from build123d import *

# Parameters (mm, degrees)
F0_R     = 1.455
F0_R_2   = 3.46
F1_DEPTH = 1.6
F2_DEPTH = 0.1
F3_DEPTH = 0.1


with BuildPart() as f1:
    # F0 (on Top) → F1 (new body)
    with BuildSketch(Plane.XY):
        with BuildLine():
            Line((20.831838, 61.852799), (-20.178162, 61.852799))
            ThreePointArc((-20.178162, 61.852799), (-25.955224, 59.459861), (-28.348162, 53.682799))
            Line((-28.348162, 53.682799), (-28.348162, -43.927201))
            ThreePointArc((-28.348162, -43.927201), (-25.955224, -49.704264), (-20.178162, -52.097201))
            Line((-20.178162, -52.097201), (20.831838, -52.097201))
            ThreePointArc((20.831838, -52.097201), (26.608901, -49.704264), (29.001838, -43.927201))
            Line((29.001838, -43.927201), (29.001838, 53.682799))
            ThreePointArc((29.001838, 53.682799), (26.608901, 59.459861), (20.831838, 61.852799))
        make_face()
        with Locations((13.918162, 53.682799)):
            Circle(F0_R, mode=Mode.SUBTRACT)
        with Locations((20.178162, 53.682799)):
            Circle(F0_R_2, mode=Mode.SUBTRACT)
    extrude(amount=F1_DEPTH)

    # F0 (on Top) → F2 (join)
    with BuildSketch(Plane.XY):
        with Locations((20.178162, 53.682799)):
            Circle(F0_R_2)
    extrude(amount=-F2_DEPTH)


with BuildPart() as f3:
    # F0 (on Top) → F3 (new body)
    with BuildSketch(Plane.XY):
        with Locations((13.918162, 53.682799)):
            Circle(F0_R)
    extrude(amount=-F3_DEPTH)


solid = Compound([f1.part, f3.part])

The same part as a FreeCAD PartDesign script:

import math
import FreeCAD as App
import Part
import Sketcher
Q = App.Units.Quantity

doc = App.newDocument("Part")
body = doc.addObject("PartDesign::Body", "Body")
body.AllowCompound = True

# Sketch on XY plane
sketch1 = body.newObject("Sketcher::SketchObject", "Sketch")
sketch1.AttachmentSupport = (doc.getObject("XY_Plane"), [""])
sketch1.MapMode = "FlatFace"
sketch1.addGeometry([
    Part.LineSegment(App.Vector(20.8, 61.9, 0), App.Vector(-20.2, 61.9, 0)),  # 0
    Part.ArcOfCircle(Part.Circle(App.Vector(-20.2, 53.7, 0), App.Vector(0, 0, 1), 8.2), math.radians(90), math.radians(180)),  # 1
    Part.LineSegment(App.Vector(-28.3, 53.7, 0), App.Vector(-28.3, -43.9, 0)),  # 2
    Part.ArcOfCircle(Part.Circle(App.Vector(-20.2, -43.9, 0), App.Vector(0, 0, 1), 8.2), math.radians(180), math.radians(270)),  # 3
    Part.LineSegment(App.Vector(-20.2, -52.1, 0), App.Vector(20.8, -52.1, 0)),  # 4
    Part.ArcOfCircle(Part.Circle(App.Vector(20.8, -43.9, 0), App.Vector(0, 0, 1), 8.2), math.radians(-90), math.radians(0)),  # 5
    Part.LineSegment(App.Vector(29, -43.9, 0), App.Vector(29, 53.7, 0)),  # 6
    Part.ArcOfCircle(Part.Circle(App.Vector(20.8, 53.7, 0), App.Vector(0, 0, 1), 8.2), math.radians(0), math.radians(90)),  # 7
    Part.Circle(App.Vector(13.9, 53.7, 0), App.Vector(0, 0, 1), 1.5),  # 8
    Part.Circle(App.Vector(20.2, 53.7, 0), App.Vector(0, 0, 1), 3.5),  # 9
], False)
sketch1.addConstraint([
    Sketcher.Constraint("Tangent", 0, 2, 1, 1),
    Sketcher.Constraint("Tangent", 1, 2, 2, 1),
    Sketcher.Constraint("Tangent", 2, 2, 3, 1),
    Sketcher.Constraint("Tangent", 3, 2, 4, 1),
    Sketcher.Constraint("Tangent", 4, 2, 5, 1),
    Sketcher.Constraint("Tangent", 5, 2, 6, 1),
    Sketcher.Constraint("Tangent", 6, 2, 7, 1),
    Sketcher.Constraint("Tangent", 7, 2, 0, 1),
    Sketcher.Constraint("Horizontal", 0),
    Sketcher.Constraint("Vertical", 2),
    Sketcher.Constraint("Horizontal", 4),
    Sketcher.Constraint("Vertical", 6),
    Sketcher.Constraint("Equal", 1, 3),
    Sketcher.Constraint("Equal", 3, 5),
    Sketcher.Constraint("Equal", 5, 7),
    Sketcher.Constraint("Symmetric", 1, 3, 9, 3, -2),
    Sketcher.Constraint("Horizontal", 7, 3, 8, 3),
    Sketcher.Constraint("Diameter", 8, Q("2.91 mm")),
    Sketcher.Constraint("Diameter", 9, Q("6.92 mm")),
    Sketcher.Constraint("Radius", 1, Q("8.170001 mm")),
    Sketcher.Constraint("DistanceX", 0, 2, 0, 1, Q("41.01 mm")),
    Sketcher.Constraint("DistanceY", 2, 2, 2, 1, Q("97.61 mm")),
    Sketcher.Constraint("DistanceX", 8, 3, 9, 3, Q("6.26 mm")),
    Sketcher.Constraint("DistanceY", 3, 3, -1, 1, Q("43.927201 mm")),
    Sketcher.Constraint("DistanceX", 1, 3, -1, 1, Q("20.178161 mm")),
])
pad1 = body.newObject("PartDesign::Pad", "Pad")
pad1.Profile = sketch1
pad1.Length = 1.6

# Sketch on XY plane
sketch2 = body.newObject("Sketcher::SketchObject", "Sketch001")
sketch2.AttachmentSupport = (doc.getObject("XY_Plane"), [""])
sketch2.MapMode = "FlatFace"
sketch2.addGeometry(Part.Circle(App.Vector(20.2, 53.7, 0), App.Vector(0, 0, 1), 3.5), False)
sketch2.addConstraint([
    Sketcher.Constraint("Diameter", 0, Q("6.92 mm")),
    Sketcher.Constraint("DistanceY", -1, 1, 0, 3, Q("53.682799 mm")),
    Sketcher.Constraint("DistanceX", -1, 1, 0, 3, Q("20.178162 mm")),
])
pad2 = body.newObject("PartDesign::Pad", "Pad001")
pad2.Profile = sketch2
pad2.Length = 0.1
pad2.Reversed = True
body2 = doc.addObject("PartDesign::Body", "Body001")

# Sketch on XY plane
sketch3 = body2.newObject("Sketcher::SketchObject", "Sketch002")
sketch3.AttachmentSupport = (doc.getObject("XY_Plane001"), [""])
sketch3.MapMode = "FlatFace"
sketch3.addGeometry(Part.Circle(App.Vector(13.9, 53.7, 0), App.Vector(0, 0, 1), 1.5), False)
sketch3.addConstraint([
    Sketcher.Constraint("Diameter", 0, Q("2.91 mm")),
    Sketcher.Constraint("DistanceY", -1, 1, 0, 3, Q("53.682799 mm")),
    Sketcher.Constraint("DistanceX", -1, 1, 0, 3, Q("13.918162 mm")),
])
pad3 = body2.newObject("PartDesign::Pad", "Pad002")
pad3.Profile = sketch3
pad3.Length = 0.1
pad3.Reversed = True

doc.recompute()
